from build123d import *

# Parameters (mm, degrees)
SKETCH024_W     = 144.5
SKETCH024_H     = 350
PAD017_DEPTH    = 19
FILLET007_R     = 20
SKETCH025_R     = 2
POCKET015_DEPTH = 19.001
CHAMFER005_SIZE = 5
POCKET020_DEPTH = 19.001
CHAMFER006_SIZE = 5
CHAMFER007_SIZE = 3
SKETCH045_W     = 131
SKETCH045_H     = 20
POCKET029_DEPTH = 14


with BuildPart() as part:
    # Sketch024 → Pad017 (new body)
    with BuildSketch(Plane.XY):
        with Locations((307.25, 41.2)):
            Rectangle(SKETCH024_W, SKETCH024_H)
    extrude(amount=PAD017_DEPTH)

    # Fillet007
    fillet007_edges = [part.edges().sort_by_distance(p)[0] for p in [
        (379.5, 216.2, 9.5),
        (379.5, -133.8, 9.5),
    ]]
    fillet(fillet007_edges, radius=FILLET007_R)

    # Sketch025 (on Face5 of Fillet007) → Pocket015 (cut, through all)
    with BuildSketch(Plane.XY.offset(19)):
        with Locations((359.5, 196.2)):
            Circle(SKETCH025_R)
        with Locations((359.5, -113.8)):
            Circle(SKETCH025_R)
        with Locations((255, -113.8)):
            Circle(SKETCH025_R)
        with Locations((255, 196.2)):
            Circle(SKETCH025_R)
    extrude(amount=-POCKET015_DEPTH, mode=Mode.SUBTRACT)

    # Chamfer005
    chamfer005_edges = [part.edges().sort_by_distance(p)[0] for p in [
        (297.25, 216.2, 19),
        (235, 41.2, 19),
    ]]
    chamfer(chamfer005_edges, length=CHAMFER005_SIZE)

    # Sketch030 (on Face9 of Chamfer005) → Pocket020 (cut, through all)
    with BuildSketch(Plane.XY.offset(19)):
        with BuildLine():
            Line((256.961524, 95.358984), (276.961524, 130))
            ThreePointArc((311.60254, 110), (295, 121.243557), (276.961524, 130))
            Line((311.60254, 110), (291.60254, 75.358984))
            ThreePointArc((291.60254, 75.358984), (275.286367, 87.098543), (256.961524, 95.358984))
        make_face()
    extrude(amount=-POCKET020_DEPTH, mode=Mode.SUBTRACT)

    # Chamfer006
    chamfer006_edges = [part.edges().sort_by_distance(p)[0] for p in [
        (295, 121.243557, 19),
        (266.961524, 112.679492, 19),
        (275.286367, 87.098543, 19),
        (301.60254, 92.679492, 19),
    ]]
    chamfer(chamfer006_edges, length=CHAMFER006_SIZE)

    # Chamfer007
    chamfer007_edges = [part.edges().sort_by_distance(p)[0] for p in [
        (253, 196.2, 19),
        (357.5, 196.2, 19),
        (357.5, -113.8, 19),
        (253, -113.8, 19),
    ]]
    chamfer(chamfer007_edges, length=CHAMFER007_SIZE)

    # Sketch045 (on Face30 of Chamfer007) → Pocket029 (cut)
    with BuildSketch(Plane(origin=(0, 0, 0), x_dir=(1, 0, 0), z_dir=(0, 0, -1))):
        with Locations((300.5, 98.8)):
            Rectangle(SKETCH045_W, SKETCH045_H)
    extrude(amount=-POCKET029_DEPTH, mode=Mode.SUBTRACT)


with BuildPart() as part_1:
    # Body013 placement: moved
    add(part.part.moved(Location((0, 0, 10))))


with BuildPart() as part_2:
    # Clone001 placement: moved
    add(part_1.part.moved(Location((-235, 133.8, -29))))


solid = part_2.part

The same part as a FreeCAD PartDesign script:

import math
import FreeCAD as App
import Part
import Sketcher
from FreeCAD import Vector
Q = App.Units.Quantity


def edges_at(feature, points):
    """Names of the edges that pass closest to the given points."""
    edges = feature.Shape.Edges
    near = lambda p: min(range(len(edges)), key=lambda i: edges[i].distToShape(Part.Vertex(*p))[0])
    return sorted({f"Edge{near(p) + 1}" for p in points})


def add_polygon(sketch, points):
    """Adds a closed chain of lines whose ends are joined by coincident constraints."""
    first, n = sketch.GeometryCount, len(points)
    for a, b in zip(points, points[1:] + points[:1]):
        sketch.addGeometry(Part.LineSegment(App.Vector(*a, 0), App.Vector(*b, 0)), False)
    for i in range(n):
        sketch.addConstraint(Sketcher.Constraint("Coincident", first + i, 2, first + (i + 1) % n, 1))

doc = App.newDocument("Part")
body = doc.addObject("PartDesign::Body", "Body")

sketch1 = body.newObject("Sketcher::SketchObject", "Sketch")
sketch1.AttachmentSupport = (doc.getObject("XY_Plane"), [""])
sketch1.MapMode = "FlatFace"
add_polygon(sketch1, [(235, 216), (235, -134), (380, -134), (380, 216)])
sketch1.addConstraint(Sketcher.Constraint("Vertical", 0))
sketch1.addConstraint(Sketcher.Constraint("Horizontal", 1))
sketch1.addConstraint(Sketcher.Constraint("Vertical", 2))
sketch1.addConstraint(Sketcher.Constraint("Horizontal", 3))
sketch1.addConstraint(Sketcher.Constraint("DistanceY", 0, 2, 0, 1, 350.0))
sketch1.addConstraint(Sketcher.Constraint("DistanceX", 1, 1, 1, 2, 144.5))
sketch1.addConstraint(Sketcher.Constraint("DistanceX", -1, 1, 0, 2, 235.0))
sketch1.addConstraint(Sketcher.Constraint("DistanceY", 0, 2, -1, 1, 133.8))
pad1 = body.newObject("PartDesign::Pad", "Pad")
pad1.Profile = sketch1
pad1.Length = 19
doc.recompute()

fillet = body.newObject("PartDesign::Fillet", "Fillet")
fillet.Base = (pad1, edges_at(pad1, [(379.5, 216.2, 9.5), (379.5, -133.8, 9.5)]))
fillet.Radius = 20

sketch2 = body.newObject("Sketcher::SketchObject", "Sketch001")
sketch2.AttachmentSupport = (doc.getObject("XY_Plane"), [""])
sketch2.MapMode = "FlatFace"
sketch2.AttachmentOffset = App.Placement(Vector(0, 0, 19), App.Rotation())
sketch2.addGeometry(Part.Circle(Vector(359.5, 196.2, 0), Vector(0, 0, 1), 2), False)
sketch2.addGeometry(Part.Circle(Vector(359.5, -113.8, 0), Vector(0, 0, 1), 2), False)
sketch2.addGeometry(Part.Circle(Vector(255, -113.8, 0), Vector(0, 0, 1), 2), False)
sketch2.addGeometry(Part.Circle(Vector(255, 196.2, 0), Vector(0, 0, 1), 2), False)
sketch2.addConstraint(Sketcher.Constraint("Equal", 0, 1))
sketch2.addConstraint(Sketcher.Constraint("Equal", 1, 2))
sketch2.addConstraint(Sketcher.Constraint("Equal", 2, 3))
sketch2.addConstraint(Sketcher.Constraint("Horizontal", 1, 3, 2, 3))
sketch2.addConstraint(Sketcher.Constraint("Horizontal", 0, 3, 3, 3))
sketch2.addConstraint(Sketcher.Constraint("Vertical", 0, 3, 1, 3))
sketch2.addConstraint(Sketcher.Constraint("Vertical", 2, 3, 3, 3))
sketch2.addConstraint(Sketcher.Constraint("Diameter", 0, 4.0))
sketch2.addConstraint(Sketcher.Constraint("DistanceX", -1, 1, 2, 3, 255.0))
sketch2.addConstraint(Sketcher.Constraint("DistanceY", 1, 3, 0, 3, 310.0))
sketch2.addConstraint(Sketcher.Constraint("DistanceX", -1, 1, 0, 3, 359.5))
sketch2.addConstraint(Sketcher.Constraint("DistanceY", -1, 1, 0, 3, 196.2))
pocket1 = body.newObject("PartDesign::Pocket", "Pocket")
pocket1.Profile = sketch2
pocket1.Type = "ThroughAll"
doc.recompute()

chamfer = body.newObject("PartDesign::Chamfer", "Chamfer")
chamfer.Base = (pocket1, edges_at(pocket1, [(297.25, 216.2, 19), (235, 41.2, 19)]))
chamfer.Size = 5

sketch3 = body.newObject("Sketcher::SketchObject", "Sketch002")
sketch3.AttachmentSupport = (doc.getObject("XY_Plane"), [""])
sketch3.MapMode = "FlatFace"
sketch3.AttachmentOffset = App.Placement(Vector(0, 0, 19), App.Rotation())
sketch3.addGeometry(Part.LineSegment(Vector(277, 130, 0), Vector(257, 95, 0)), False)
sketch3.addGeometry(Part.ArcOfCircle(Part.Circle(Vector(225, 0, 0), Vector(0, 0, 1), 101), math.radians(49), math.radians(71)), False)
sketch3.addGeometry(Part.LineSegment(Vector(292, 75, 0), Vector(312, 110, 0)), False)
sketch3.addGeometry(Part.ArcOfCircle(Part.Circle(Vector(225, 0, 0), Vector(0, 0, 1), 140), math.radians(51.79), math.radians(68.21)), False)
sketch3.addConstraint(Sketcher.Constraint("Coincident", 0, 2, 1, 2))
sketch3.addConstraint(Sketcher.Constraint("Coincident", 1, 1, 2, 1))
sketch3.addConstraint(Sketcher.Constraint("Coincident", 2, 2, 3, 1))
sketch3.addConstraint(Sketcher.Constraint("Coincident", 3, 2, 0, 1))
sketch3.addConstraint(Sketcher.Constraint("Parallel", 0, 2))
sketch3.addConstraint(Sketcher.Constraint("Equal", 0, 2))
sketch3.addConstraint(Sketcher.Constraint("Angle", 0, Q("-120 deg")))
sketch3.addConstraint(Sketcher.Constraint("Distance", 0, 40.0))
sketch3.addConstraint(Sketcher.Constraint("DistanceY", -1, 1, 2, 2, 110.0))
sketch3.addConstraint(Sketcher.Constraint("DistanceY", -1, 1, 3, 2, 130.0))
sketch3.addConstraint(Sketcher.Constraint("Radius", 1, 100.572716))
sketch3.addConstraint(Sketcher.Constraint("Radius", 3, 139.999945))
sketch3.addConstraint(Sketcher.Constraint("DistanceX", -1, 1, 1, 3, 225.000009))
sketch3.addConstraint(Sketcher.Constraint("DistanceX", -1, 1, 1, 1, 291.60254))
pocket2 = body.newObject("PartDesign::Pocket", "Pocket001")
pocket2.Profile = sketch3
pocket2.Type = "ThroughAll"
doc.recompute()

chamfer2 = body.newObject("PartDesign::Chamfer", "Chamfer001")
chamfer2.Base = (pocket2, edges_at(pocket2, [
    (295, 121.244, 19),
    (266.962, 112.679, 19),
    (275.286, 87.099, 19),
    (301.603, 92.679, 19),
]))
chamfer2.Size = 5
doc.recompute()

chamfer3 = body.newObject("PartDesign::Chamfer", "Chamfer002")
chamfer3.Base = (chamfer2, edges_at(chamfer2, [
    (253, 196.2, 19),
    (357.5, 196.2, 19),
    (357.5, -113.8, 19),
    (253, -113.8, 19),
]))
chamfer3.Size = 3

sketch4 = body.newObject("Sketcher::SketchObject", "Sketch003")
sketch4.AttachmentSupport = (doc.getObject("XY_Plane"), [""])
sketch4.MapMode = "FlatFace"
add_polygon(sketch4, [(235, -109), (235, -89), (366, -89), (366, -109)])
sketch4.addConstraint(Sketcher.Constraint("Vertical", 0))
sketch4.addConstraint(Sketcher.Constraint("Horizontal", 1))
sketch4.addConstraint(Sketcher.Constraint("Vertical", 2))
sketch4.addConstraint(Sketcher.Constraint("Horizontal", 3))
sketch4.addConstraint(Sketcher.Constraint("DistanceX", 1, 1, 1, 2, 131.0))
sketch4.addConstraint(Sketcher.Constraint("DistanceY", 0, 1, 0, 2, 20.0))
sketch4.addConstraint(Sketcher.Constraint("DistanceX", -1, 1, 0, 2, 235.0))
sketch4.addConstraint(Sketcher.Constraint("DistanceY", 0, 2, -1, 1, 88.8))
pocket3 = body.newObject("PartDesign::Pocket", "Pocket002")
pocket3.Profile = sketch4
pocket3.Length = 14
pocket3.Reversed = True
body2 = doc.addObject("PartDesign::Body", "Body001")
doc.recompute()

body.Placement = App.Placement(Vector(0, 0, 10), App.Rotation(Vector(0, 0, 1), 0))
boolean = body2.newObject("PartDesign::Boolean", "Boolean")
boolean.Type = "Fuse"
boolean.addObjects([body])
body3 = doc.addObject("PartDesign::Body", "Body002")
doc.recompute()

body2.Placement = App.Placement(Vector(-235, 133.8, -29), App.Rotation(Vector(0, 0, 1), 0))
boolean2 = body3.newObject("PartDesign::Boolean", "Boolean001")
boolean2.Type = "Fuse"
boolean2.addObjects([body2])

doc.recompute()
